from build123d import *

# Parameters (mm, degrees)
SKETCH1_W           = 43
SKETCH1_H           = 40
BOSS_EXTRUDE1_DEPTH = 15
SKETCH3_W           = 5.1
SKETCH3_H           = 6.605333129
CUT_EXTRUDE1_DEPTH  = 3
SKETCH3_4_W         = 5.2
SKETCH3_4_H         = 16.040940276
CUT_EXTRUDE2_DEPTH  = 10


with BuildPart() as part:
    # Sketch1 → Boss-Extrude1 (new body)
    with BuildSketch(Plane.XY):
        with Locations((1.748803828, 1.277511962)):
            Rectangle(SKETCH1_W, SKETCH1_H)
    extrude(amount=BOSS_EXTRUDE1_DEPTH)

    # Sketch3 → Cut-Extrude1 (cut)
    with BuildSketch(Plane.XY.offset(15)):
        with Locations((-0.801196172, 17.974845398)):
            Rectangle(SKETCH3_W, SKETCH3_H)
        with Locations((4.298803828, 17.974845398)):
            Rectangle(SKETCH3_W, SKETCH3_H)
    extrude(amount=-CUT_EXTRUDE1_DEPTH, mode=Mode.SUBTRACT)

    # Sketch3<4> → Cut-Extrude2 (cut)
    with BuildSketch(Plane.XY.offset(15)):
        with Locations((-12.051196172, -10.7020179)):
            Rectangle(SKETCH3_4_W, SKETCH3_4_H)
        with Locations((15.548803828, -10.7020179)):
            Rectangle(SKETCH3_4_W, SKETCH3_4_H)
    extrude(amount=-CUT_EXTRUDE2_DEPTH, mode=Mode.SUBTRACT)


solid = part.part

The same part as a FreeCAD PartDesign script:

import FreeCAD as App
import Part
import Sketcher
from FreeCAD import Vector

doc = App.newDocument("Part")
body = doc.addObject("PartDesign::Body", "Body")

sketch1 = doc.addObject("Sketcher::SketchObject", "Sketch")
body.addObject(sketch1)
sketch1.AttachmentSupport = (doc.XY_Plane, [""])
sketch1.MapMode = "FlatFace"
sketch1.addGeometry([
    Part.LineSegment(Vector(-19.751196, 21.277512, 0), Vector(-19.751196, -18.722488, 0)),
    Part.LineSegment(Vector(-19.751196, -18.722488, 0), Vector(23.248804, -18.722488, 0)),
    Part.LineSegment(Vector(23.248804, -18.722488, 0), Vector(23.248804, 21.277512, 0)),
    Part.LineSegment(Vector(23.248804, 21.277512, 0), Vector(-19.751196, 21.277512, 0)),
], False)
sketch1.addConstraint([
    Sketcher.Constraint("Coincident", 0, 2, 1, 1),
    Sketcher.Constraint("Coincident", 1, 2, 2, 1),
    Sketcher.Constraint("Coincident", 2, 2, 3, 1),
    Sketcher.Constraint("Coincident", 3, 2, 0, 1),
    Sketcher.Constraint("Vertical", 0),
    Sketcher.Constraint("Horizontal", 1),
    Sketcher.Constraint("Vertical", 2),
    Sketcher.Constraint("Horizontal", 3),
    Sketcher.Constraint("DistanceX", 1, 1, 1, 2, 43.0),
    Sketcher.Constraint("DistanceY", 0, 2, 0, 1, 40.0),
    Sketcher.Constraint("DistanceY", 0, 2, -1, 1, 18.722488),
    Sketcher.Constraint("DistanceX", 0, 2, -1, 1, 19.751196),
])
pad1 = doc.addObject("PartDesign::Pad", "Pad")
body.addObject(pad1)
pad1.Profile = sketch1
pad1.Length = 15

sketch2 = doc.addObject("Sketcher::SketchObject", "Sketch001")
body.addObject(sketch2)
sketch2.AttachmentSupport = (doc.XY_Plane, [""])
sketch2.MapMode = "FlatFace"
sketch2.AttachmentOffset = App.Placement(Vector(0, 0, 15), App.Rotation())
sketch2.addGeometry([
    Part.LineSegment(Vector(-3.351196, 21.277512, 0), Vector(-3.351196, 14.672179, 0)),
    Part.LineSegment(Vector(-3.351196, 14.672179, 0), Vector(6.848804, 14.672179, 0)),
    Part.LineSegment(Vector(6.848804, 14.672179, 0), Vector(6.848804, 21.277512, 0)),
    Part.LineSegment(Vector(6.848804, 21.277512, 0), Vector(-3.351196, 21.277512, 0)),
], False)
sketch2.addConstraint([
    Sketcher.Constraint("Coincident", 0, 2, 1, 1),
    Sketcher.Constraint("Coincident", 1, 2, 2, 1),
    Sketcher.Constraint("Coincident", 2, 2, 3, 1),
    Sketcher.Constraint("Coincident", 3, 2, 0, 1),
    Sketcher.Constraint("Vertical", 0),
    Sketcher.Constraint("Horizontal", 1),
    Sketcher.Constraint("Vertical", 2),
    Sketcher.Constraint("Horizontal", 3),
    Sketcher.Constraint("DistanceX", 1, 1, 1, 2, 10.2),
    Sketcher.Constraint("DistanceY", 0, 2, 0, 1, 6.605333),
    Sketcher.Constraint("DistanceY", -1, 1, 0, 2, 14.672179),
    Sketcher.Constraint("DistanceX", 0, 2, -1, 1, 3.351196),
])
pocket1 = doc.addObject("PartDesign::Pocket", "Pocket")
body.addObject(pocket1)
pocket1.Profile = sketch2
pocket1.Length = 3

sketch3 = doc.addObject("Sketcher::SketchObject", "Sketch002")
body.addObject(sketch3)
sketch3.AttachmentSupport = (doc.XY_Plane, [""])
sketch3.MapMode = "FlatFace"
sketch3.AttachmentOffset = App.Placement(Vector(0, 0, 15), App.Rotation())
sketch3.addGeometry([
    Part.LineSegment(Vector(-14.651196, -2.681548, 0), Vector(-14.651196, -18.722488, 0)),
    Part.LineSegment(Vector(-14.651196, -18.722488, 0), Vector(-9.451196, -18.722488, 0)),
    Part.LineSegment(Vector(-9.451196, -18.722488, 0), Vector(-9.451196, -2.681548, 0)),
    Part.LineSegment(Vector(-9.451196, -2.681548, 0), Vector(-14.651196, -2.681548, 0)),
    Part.LineSegment(Vector(12.948804, -2.681548, 0), Vector(12.948804, -18.722488, 0)),
    Part.LineSegment(Vector(12.948804, -18.722488, 0), Vector(18.148804, -18.722488, 0)),
    Part.LineSegment(Vector(18.148804, -18.722488, 0), Vector(18.148804, -2.681548, 0)),
    Part.LineSegment(Vector(18.148804, -2.681548, 0), Vector(12.948804, -2.681548, 0)),
], False)
sketch3.addConstraint([
    Sketcher.Constraint("Coincident", 0, 2, 1, 1),
    Sketcher.Constraint("Coincident", 1, 2, 2, 1),
    Sketcher.Constraint("Coincident", 2, 2, 3, 1),
    Sketcher.Constraint("Coincident", 3, 2, 0, 1),
    Sketcher.Constraint("Coincident", 4, 2, 5, 1),
    Sketcher.Constraint("Coincident", 5, 2, 6, 1),
    Sketcher.Constraint("Coincident", 6, 2, 7, 1),
    Sketcher.Constraint("Coincident", 7, 2, 4, 1),
    Sketcher.Constraint("Vertical", 0),
    Sketcher.Constraint("Horizontal", 1),
    Sketcher.Constraint("Vertical", 2),
    Sketcher.Constraint("Horizontal", 3),
    Sketcher.Constraint("Vertical", 4),
    Sketcher.Constraint("Horizontal", 5),
    Sketcher.Constraint("Vertical", 6),
    Sketcher.Constraint("Horizontal", 7),
    Sketcher.Constraint("Horizontal", 1, 2, 4, 2),
    Sketcher.Constraint("Horizontal", 3, 2, 6, 2),
    Sketcher.Constraint("Equal", 3, 5),
    Sketcher.Constraint("DistanceX", 1, 1, 1, 2, 5.2),
    Sketcher.Constraint("DistanceX", 1, 2, 4, 2, 22.4),
    Sketcher.Constraint("DistanceY", 0, 2, 0, 1, 16.04094),
    Sketcher.Constraint("DistanceY", 0, 2, -1, 1, 18.722488),
    Sketcher.Constraint("DistanceX", 0, 2, -1, 1, 14.651196),
])
pocket2 = doc.addObject("PartDesign::Pocket", "Pocket001")
body.addObject(pocket2)
pocket2.Profile = sketch3
pocket2.Length = 10

doc.recompute()
